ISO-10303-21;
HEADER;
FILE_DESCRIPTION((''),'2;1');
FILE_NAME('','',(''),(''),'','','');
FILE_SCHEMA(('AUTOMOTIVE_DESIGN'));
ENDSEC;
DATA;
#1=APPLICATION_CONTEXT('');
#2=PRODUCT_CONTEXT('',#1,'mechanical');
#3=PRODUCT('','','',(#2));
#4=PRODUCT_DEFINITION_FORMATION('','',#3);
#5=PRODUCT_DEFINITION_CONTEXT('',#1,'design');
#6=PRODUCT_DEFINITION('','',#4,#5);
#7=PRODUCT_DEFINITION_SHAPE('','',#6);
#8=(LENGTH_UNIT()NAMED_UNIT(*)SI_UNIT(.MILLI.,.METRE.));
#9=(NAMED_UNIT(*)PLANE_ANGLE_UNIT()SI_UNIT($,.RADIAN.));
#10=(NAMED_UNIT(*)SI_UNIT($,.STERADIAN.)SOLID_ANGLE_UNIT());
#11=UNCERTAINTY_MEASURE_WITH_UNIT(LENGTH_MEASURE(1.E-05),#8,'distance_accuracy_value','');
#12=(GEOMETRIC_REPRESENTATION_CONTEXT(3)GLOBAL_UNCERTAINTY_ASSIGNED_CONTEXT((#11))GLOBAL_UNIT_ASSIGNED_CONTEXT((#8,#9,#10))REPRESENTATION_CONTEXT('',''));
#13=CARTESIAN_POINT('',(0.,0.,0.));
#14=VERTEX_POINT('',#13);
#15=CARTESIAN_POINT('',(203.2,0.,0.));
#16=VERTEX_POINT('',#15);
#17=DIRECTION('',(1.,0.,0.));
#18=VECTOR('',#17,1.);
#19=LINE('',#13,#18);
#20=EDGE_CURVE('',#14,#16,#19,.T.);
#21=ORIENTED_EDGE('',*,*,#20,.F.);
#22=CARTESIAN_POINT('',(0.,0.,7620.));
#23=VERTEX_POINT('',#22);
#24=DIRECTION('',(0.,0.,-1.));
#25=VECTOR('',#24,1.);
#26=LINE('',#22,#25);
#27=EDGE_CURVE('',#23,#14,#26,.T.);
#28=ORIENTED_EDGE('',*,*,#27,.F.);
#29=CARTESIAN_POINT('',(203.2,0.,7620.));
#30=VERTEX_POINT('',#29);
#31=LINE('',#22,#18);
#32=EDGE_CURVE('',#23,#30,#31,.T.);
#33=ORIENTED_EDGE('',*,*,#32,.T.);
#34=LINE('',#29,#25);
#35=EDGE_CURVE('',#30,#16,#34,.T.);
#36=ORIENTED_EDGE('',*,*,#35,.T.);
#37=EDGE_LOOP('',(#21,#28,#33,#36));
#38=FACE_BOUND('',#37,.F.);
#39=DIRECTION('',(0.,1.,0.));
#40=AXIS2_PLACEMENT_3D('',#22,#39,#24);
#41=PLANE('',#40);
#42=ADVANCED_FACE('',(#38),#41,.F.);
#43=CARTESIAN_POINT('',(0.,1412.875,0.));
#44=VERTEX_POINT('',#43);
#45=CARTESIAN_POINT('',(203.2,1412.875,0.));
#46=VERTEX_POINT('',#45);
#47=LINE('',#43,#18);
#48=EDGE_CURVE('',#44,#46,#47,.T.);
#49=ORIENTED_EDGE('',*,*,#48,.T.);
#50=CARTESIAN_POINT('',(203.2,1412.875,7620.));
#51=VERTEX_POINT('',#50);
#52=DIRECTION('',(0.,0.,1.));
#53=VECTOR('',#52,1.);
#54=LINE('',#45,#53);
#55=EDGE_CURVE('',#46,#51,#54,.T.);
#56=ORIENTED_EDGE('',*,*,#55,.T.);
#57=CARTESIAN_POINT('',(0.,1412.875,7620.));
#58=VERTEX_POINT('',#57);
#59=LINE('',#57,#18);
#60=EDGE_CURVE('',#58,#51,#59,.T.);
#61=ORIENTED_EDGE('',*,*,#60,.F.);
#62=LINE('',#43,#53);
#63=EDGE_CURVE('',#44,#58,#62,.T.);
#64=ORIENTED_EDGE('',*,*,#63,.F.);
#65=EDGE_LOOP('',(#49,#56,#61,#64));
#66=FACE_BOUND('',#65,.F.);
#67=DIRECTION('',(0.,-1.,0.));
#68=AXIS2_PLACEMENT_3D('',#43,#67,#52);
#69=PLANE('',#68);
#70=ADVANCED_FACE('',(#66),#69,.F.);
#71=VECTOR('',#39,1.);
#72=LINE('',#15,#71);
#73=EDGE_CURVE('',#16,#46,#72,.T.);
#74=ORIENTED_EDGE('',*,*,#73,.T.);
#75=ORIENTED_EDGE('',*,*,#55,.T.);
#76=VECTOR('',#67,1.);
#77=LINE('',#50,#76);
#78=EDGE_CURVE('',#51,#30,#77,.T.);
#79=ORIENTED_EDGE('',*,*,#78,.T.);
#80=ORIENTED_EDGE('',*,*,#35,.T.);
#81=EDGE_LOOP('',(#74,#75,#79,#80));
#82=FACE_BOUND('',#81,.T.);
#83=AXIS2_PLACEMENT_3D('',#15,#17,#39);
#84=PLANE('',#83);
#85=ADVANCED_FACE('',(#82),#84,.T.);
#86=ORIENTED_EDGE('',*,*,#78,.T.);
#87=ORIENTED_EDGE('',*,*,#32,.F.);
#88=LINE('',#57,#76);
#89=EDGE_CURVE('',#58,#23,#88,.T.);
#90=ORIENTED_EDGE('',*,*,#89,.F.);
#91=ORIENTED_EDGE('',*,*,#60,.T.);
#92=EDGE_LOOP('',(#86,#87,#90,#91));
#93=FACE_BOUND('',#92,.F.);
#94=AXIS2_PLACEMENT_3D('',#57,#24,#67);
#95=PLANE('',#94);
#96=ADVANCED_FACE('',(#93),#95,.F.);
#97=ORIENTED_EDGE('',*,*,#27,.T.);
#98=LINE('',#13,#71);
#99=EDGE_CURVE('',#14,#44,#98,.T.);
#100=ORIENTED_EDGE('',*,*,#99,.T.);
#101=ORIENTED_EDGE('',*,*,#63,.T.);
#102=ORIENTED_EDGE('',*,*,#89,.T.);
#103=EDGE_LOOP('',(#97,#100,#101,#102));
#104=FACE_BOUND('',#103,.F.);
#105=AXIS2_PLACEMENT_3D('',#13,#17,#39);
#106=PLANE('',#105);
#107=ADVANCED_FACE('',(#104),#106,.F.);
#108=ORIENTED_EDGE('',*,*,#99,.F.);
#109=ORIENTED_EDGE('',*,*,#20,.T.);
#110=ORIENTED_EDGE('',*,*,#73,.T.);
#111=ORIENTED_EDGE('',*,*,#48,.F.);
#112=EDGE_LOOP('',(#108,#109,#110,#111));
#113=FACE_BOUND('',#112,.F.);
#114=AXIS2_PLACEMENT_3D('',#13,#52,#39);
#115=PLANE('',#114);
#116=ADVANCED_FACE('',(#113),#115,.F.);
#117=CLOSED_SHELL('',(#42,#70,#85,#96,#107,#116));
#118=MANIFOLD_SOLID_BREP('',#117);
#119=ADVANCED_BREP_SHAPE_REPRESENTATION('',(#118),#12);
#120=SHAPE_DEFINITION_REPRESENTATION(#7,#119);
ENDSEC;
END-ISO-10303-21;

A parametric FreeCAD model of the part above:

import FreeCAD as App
import Part
import Sketcher

V = App.Vector
Q = App.Units.Quantity

doc = App.newDocument("Part")
body = doc.addObject("PartDesign::Body", "Body")

sketch1 = body.newObject("Sketcher::SketchObject", "Sketch")
sketch1.AttachmentSupport = (doc.getObject("YZ_Plane"), [""])
sketch1.MapMode = "FlatFace"
sketch1.addGeometry(Part.LineSegment(V(0, 7620, 0), V(0, 0, 0)), False)
sketch1.addGeometry(Part.LineSegment(V(0, 0, 0), V(1412.875, 0, 0)), False)
sketch1.addGeometry(Part.LineSegment(V(1412.875, 0, 0), V(1412.875, 7620, 0)), False)
sketch1.addGeometry(Part.LineSegment(V(1412.875, 7620, 0), V(0, 7620, 0)), False)
sketch1.addConstraint(Sketcher.Constraint("Coincident", 0, 2, 1, 1))
sketch1.addConstraint(Sketcher.Constraint("Coincident", 1, 2, 2, 1))
sketch1.addConstraint(Sketcher.Constraint("Coincident", 2, 2, 3, 1))
sketch1.addConstraint(Sketcher.Constraint("Coincident", 3, 2, 0, 1))
sketch1.addConstraint(Sketcher.Constraint("Vertical", 0))
sketch1.addConstraint(Sketcher.Constraint("Horizontal", 1))
sketch1.addConstraint(Sketcher.Constraint("Vertical", 2))
sketch1.addConstraint(Sketcher.Constraint("Horizontal", 3))
sketch1.addConstraint(Sketcher.Constraint("Coincident", 0, 2, -1, 1))
sketch1.addConstraint(Sketcher.Constraint("DistanceY", 0, 2, 0, 1, Q("300 in")))
sketch1.addConstraint(Sketcher.Constraint("DistanceX", 1, 1, 1, 2, Q("55.625 in")))
pad1 = body.newObject("PartDesign::Pad", "Pad")
pad1.Profile = sketch1
pad1.Length = Q("8 in")

doc.recompute()
